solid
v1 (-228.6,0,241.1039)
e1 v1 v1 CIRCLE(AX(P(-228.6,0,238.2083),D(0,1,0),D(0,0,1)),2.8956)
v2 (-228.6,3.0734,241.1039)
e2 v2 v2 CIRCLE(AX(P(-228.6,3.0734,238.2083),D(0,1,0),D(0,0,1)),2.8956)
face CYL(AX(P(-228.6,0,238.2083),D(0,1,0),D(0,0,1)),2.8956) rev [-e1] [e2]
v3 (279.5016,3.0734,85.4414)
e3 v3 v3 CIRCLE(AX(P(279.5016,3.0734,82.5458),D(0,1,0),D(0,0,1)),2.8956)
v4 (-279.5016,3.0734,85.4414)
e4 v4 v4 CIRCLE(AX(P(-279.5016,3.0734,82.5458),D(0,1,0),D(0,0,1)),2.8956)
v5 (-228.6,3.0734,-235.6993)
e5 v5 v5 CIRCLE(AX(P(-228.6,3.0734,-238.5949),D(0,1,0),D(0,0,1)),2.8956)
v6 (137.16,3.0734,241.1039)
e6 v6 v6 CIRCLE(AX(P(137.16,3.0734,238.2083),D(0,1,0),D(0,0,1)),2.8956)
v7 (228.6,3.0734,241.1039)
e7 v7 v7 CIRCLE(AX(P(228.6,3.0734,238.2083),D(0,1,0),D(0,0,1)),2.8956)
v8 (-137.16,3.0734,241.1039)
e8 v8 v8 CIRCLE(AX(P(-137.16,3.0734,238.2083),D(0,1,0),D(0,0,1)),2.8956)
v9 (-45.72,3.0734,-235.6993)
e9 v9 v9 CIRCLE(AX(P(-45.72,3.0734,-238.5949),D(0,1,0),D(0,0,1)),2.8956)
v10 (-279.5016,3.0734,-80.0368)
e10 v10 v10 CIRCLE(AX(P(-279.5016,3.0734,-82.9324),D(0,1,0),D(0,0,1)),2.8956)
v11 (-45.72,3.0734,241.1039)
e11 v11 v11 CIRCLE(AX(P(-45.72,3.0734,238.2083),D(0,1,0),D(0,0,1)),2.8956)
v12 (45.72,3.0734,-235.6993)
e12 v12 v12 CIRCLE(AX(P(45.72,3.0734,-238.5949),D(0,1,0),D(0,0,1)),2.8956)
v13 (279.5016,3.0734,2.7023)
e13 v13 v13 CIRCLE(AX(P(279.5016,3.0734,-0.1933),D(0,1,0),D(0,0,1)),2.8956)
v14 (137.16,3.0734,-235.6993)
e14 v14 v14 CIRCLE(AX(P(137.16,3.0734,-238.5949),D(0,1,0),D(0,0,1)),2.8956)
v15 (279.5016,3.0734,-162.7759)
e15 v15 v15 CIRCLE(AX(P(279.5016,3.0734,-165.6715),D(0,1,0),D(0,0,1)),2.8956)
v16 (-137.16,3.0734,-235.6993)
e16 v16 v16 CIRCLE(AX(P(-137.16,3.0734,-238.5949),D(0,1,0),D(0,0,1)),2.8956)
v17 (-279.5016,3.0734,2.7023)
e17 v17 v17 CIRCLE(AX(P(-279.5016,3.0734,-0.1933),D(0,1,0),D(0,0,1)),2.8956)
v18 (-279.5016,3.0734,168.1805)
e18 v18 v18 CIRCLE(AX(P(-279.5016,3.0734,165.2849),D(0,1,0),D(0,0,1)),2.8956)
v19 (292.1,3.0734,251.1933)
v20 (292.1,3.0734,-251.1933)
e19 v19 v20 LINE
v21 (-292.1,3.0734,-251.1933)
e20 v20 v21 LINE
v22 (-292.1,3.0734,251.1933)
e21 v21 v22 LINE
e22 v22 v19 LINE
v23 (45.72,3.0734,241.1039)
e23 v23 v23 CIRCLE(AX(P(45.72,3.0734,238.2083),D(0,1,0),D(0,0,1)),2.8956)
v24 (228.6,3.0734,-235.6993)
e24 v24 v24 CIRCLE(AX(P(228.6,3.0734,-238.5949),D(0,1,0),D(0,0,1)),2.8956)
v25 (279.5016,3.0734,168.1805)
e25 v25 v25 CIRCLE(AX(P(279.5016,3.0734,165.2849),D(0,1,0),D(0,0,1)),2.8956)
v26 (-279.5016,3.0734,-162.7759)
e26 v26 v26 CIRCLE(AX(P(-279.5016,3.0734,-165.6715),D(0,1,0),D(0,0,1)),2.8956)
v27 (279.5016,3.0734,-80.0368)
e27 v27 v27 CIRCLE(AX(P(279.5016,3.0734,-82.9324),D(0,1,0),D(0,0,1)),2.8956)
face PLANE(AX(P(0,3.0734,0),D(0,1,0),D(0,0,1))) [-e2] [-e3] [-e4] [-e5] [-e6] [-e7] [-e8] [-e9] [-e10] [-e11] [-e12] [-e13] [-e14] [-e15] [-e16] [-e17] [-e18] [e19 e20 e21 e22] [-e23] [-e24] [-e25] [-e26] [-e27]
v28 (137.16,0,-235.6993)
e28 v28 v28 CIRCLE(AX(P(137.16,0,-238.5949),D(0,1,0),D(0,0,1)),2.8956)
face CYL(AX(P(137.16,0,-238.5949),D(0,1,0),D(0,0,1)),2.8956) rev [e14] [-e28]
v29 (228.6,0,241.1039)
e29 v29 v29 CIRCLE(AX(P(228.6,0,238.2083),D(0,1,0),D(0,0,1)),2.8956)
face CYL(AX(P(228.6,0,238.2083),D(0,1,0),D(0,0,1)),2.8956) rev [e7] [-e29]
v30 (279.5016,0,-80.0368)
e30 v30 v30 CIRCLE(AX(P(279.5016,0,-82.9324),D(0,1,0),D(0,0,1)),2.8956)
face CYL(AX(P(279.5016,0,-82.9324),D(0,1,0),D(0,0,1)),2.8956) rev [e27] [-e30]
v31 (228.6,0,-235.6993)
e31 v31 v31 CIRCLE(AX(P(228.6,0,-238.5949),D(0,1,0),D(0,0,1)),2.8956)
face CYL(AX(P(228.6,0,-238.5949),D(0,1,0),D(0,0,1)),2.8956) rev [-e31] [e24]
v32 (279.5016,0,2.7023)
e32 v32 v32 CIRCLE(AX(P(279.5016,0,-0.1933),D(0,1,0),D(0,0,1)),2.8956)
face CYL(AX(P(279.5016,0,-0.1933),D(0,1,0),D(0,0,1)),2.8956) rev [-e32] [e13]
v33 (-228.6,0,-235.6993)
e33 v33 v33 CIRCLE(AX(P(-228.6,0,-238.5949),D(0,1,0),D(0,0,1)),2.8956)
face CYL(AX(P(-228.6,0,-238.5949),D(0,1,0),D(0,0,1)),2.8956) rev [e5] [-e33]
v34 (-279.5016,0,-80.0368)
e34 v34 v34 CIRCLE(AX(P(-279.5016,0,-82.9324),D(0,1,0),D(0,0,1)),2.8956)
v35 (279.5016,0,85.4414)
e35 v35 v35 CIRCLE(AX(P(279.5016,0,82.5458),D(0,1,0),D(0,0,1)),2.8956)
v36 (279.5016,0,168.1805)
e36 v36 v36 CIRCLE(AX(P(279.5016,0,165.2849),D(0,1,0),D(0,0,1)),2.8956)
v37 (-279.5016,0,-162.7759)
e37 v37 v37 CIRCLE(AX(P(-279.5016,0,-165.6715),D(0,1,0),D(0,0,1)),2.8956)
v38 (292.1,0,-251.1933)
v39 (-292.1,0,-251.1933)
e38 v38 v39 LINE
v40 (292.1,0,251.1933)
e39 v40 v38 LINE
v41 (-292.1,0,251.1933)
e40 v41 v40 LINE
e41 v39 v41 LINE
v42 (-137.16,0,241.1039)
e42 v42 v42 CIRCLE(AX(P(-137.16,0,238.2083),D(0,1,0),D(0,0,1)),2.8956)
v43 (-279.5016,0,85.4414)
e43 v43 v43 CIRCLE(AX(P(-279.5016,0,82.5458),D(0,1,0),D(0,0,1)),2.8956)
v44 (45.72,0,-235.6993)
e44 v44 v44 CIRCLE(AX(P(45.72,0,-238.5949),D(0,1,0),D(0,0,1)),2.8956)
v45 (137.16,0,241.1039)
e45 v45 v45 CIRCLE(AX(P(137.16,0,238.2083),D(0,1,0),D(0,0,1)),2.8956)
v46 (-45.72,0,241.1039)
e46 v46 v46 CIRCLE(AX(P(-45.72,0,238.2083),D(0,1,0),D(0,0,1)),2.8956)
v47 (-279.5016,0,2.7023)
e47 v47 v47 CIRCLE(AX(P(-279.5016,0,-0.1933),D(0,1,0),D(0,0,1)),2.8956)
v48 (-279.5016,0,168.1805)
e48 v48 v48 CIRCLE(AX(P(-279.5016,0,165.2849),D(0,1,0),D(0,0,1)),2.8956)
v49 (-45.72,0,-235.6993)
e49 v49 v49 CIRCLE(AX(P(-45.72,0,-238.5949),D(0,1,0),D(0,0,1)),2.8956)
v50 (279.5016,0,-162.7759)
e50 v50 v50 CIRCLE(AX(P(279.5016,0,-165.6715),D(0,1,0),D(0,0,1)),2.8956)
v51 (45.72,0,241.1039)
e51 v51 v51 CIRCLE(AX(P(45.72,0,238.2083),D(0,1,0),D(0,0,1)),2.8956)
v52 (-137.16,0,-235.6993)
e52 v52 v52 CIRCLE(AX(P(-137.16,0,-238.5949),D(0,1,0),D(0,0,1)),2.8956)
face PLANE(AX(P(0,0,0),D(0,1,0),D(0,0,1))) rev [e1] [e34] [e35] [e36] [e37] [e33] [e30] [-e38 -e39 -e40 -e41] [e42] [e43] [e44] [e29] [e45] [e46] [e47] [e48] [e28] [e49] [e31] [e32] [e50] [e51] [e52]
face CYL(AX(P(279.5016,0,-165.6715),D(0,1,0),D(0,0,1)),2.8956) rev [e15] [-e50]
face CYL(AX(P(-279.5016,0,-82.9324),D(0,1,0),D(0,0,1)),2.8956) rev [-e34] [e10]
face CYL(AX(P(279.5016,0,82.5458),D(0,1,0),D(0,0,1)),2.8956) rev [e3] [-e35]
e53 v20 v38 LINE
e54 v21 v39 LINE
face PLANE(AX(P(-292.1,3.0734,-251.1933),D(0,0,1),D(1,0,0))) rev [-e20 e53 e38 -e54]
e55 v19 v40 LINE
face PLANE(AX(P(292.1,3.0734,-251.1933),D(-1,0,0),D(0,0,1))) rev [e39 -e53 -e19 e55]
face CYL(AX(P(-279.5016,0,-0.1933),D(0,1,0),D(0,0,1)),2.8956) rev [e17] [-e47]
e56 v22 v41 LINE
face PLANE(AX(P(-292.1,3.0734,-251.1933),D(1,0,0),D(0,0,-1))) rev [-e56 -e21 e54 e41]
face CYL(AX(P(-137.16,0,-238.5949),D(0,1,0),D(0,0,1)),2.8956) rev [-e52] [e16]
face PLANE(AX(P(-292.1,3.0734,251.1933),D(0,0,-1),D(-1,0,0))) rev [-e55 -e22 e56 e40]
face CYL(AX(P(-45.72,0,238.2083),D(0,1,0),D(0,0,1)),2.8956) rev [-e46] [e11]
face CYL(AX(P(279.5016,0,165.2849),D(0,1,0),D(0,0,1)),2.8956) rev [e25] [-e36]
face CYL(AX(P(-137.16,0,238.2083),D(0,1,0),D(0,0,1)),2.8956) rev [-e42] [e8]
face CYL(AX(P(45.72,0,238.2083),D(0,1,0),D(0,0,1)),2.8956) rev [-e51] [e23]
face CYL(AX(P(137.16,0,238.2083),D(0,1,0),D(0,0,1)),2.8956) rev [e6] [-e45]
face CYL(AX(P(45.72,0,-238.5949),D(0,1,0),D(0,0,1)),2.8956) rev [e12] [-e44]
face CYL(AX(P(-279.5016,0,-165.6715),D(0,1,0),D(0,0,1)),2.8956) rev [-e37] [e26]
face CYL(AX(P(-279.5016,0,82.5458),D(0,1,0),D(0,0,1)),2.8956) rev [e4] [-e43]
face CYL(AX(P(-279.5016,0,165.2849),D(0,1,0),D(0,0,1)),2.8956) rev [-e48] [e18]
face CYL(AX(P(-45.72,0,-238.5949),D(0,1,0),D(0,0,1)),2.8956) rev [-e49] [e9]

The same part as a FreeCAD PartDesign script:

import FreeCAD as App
import Part
import Sketcher
Q = App.Units.Quantity


def add_polygon(sketch, points):
    """Adds a closed chain of lines whose ends are joined by coincident constraints."""
    first, n = sketch.GeometryCount, len(points)
    for a, b in zip(points, points[1:] + points[:1]):
        sketch.addGeometry(Part.LineSegment(App.Vector(*a, 0), App.Vector(*b, 0)), False)
    for i in range(n):
        sketch.addConstraint(Sketcher.Constraint("Coincident", first + i, 2, first + (i + 1) % n, 1))

doc = App.newDocument("Part")
body = doc.addObject("PartDesign::Body", "Body")

# Sketch on XZ plane
sketch1 = doc.addObject("Sketcher::SketchObject", "Sketch")
body.addObject(sketch1)
sketch1.AttachmentSupport = (doc.XZ_Plane, [""])
sketch1.MapMode = "FlatFace"
add_polygon(sketch1, [(-292.1, -251.1933), (-292.1, 251.1933), (292.1, 251.1933), (292.1, -251.1933)])  # lines 0-3
sketch1.addConstraint([
    Sketcher.Constraint("Vertical", 0),
    Sketcher.Constraint("Horizontal", 1),
    Sketcher.Constraint("Vertical", 2),
    Sketcher.Constraint("Horizontal", 3),
    Sketcher.Constraint("Symmetric", 0, 2, 2, 2, -1, 1),
    Sketcher.Constraint("DistanceX", 1, 1, 1, 2, Q("23 in")),
    Sketcher.Constraint("DistanceY", 0, 1, 0, 2, Q("19.779 in")),
])
pad1 = doc.addObject("PartDesign::Pad", "Pad")
body.addObject(pad1)
pad1.Profile = sketch1
pad1.Length = Q("0.121 in")
pad1.Reversed = True

# Sketch on XZ plane
sketch2 = doc.addObject("Sketcher::SketchObject", "Sketch001")
body.addObject(sketch2)
sketch2.AttachmentSupport = (doc.XZ_Plane, [""])
sketch2.MapMode = "FlatFace"
sketch2.AttachmentOffset = App.Placement(App.Vector(0, 0, -0.121 * 25.4), App.Rotation())
sketch2.addGeometry([
    Part.Circle(App.Vector(-228.6, -238.5949, 0), App.Vector(0, 0, 1), 2.8956),
    Part.Circle(App.Vector(-228.6, 238.2083, 0), App.Vector(0, 0, 1), 2.8956),
], False)
sketch2.addConstraint([
    Sketcher.Constraint("Equal", 0, 1),
    Sketcher.Constraint("Vertical", 0, 3, 1, 3),
    Sketcher.Constraint("Diameter", 0, Q("0.228 in")),
    Sketcher.Constraint("DistanceX", 0, 3, -1, 1, Q("9 in")),
    Sketcher.Constraint("DistanceY", 0, 3, -1, 1, Q("9.3935 in")),
    Sketcher.Constraint("DistanceY", -1, 1, 1, 3, 238.2083),
])
pocket1 = doc.addObject("PartDesign::Pocket", "Pocket")
body.addObject(pocket1)
pocket1.Profile = sketch2
pocket1.Type = "ThroughAll"
pocket1.Reversed = True
doc.recompute()

linearpattern = doc.addObject("PartDesign::LinearPattern", "LinearPattern")
body.addObject(linearpattern)
linearpattern.Originals = [pocket1]
linearpattern.Direction = (doc.X_Axis, [""])
linearpattern.Mode = "offset"
linearpattern.Offset = Q("3.6 in")
linearpattern.Occurrences = 6
body.Tip = linearpattern

# Sketch on XZ plane
sketch3 = doc.addObject("Sketcher::SketchObject", "Sketch002")
body.addObject(sketch3)
sketch3.AttachmentSupport = (doc.XZ_Plane, [""])
sketch3.MapMode = "FlatFace"
sketch3.AttachmentOffset = App.Placement(App.Vector(0, 0, -0.121 * 25.4), App.Rotation())
sketch3.addGeometry([
    Part.Circle(App.Vector(-279.5016, -165.6715, 0), App.Vector(0, 0, 1), 2.8956),
    Part.Circle(App.Vector(279.5016, -165.6715, 0), App.Vector(0, 0, 1), 2.8956),
], False)
sketch3.addConstraint([
    Sketcher.Constraint("Equal", 0, 1),
    Sketcher.Constraint("Symmetric", 0, 3, 1, 3, -2),
    Sketcher.Constraint("Diameter", 0, Q("0.228 in")),
    Sketcher.Constraint("DistanceX", 0, 3, -1, 1, Q("11.004 in")),
    Sketcher.Constraint("DistanceY", 0, 3, -1, 1, Q("6.5225 in")),
])
pocket2 = doc.addObject("PartDesign::Pocket", "Pocket001")
body.addObject(pocket2)
pocket2.Profile = sketch3
pocket2.Type = "ThroughAll"
pocket2.Reversed = True
doc.recompute()

linearpattern2 = doc.addObject("PartDesign::LinearPattern", "LinearPattern001")
body.addObject(linearpattern2)
linearpattern2.Originals = [pocket2]
linearpattern2.Direction = (doc.Z_Axis, [""])
linearpattern2.Mode = "offset"
linearpattern2.Offset = 82.7391
linearpattern2.Occurrences = 5
body.Tip = linearpattern2

doc.recompute()
